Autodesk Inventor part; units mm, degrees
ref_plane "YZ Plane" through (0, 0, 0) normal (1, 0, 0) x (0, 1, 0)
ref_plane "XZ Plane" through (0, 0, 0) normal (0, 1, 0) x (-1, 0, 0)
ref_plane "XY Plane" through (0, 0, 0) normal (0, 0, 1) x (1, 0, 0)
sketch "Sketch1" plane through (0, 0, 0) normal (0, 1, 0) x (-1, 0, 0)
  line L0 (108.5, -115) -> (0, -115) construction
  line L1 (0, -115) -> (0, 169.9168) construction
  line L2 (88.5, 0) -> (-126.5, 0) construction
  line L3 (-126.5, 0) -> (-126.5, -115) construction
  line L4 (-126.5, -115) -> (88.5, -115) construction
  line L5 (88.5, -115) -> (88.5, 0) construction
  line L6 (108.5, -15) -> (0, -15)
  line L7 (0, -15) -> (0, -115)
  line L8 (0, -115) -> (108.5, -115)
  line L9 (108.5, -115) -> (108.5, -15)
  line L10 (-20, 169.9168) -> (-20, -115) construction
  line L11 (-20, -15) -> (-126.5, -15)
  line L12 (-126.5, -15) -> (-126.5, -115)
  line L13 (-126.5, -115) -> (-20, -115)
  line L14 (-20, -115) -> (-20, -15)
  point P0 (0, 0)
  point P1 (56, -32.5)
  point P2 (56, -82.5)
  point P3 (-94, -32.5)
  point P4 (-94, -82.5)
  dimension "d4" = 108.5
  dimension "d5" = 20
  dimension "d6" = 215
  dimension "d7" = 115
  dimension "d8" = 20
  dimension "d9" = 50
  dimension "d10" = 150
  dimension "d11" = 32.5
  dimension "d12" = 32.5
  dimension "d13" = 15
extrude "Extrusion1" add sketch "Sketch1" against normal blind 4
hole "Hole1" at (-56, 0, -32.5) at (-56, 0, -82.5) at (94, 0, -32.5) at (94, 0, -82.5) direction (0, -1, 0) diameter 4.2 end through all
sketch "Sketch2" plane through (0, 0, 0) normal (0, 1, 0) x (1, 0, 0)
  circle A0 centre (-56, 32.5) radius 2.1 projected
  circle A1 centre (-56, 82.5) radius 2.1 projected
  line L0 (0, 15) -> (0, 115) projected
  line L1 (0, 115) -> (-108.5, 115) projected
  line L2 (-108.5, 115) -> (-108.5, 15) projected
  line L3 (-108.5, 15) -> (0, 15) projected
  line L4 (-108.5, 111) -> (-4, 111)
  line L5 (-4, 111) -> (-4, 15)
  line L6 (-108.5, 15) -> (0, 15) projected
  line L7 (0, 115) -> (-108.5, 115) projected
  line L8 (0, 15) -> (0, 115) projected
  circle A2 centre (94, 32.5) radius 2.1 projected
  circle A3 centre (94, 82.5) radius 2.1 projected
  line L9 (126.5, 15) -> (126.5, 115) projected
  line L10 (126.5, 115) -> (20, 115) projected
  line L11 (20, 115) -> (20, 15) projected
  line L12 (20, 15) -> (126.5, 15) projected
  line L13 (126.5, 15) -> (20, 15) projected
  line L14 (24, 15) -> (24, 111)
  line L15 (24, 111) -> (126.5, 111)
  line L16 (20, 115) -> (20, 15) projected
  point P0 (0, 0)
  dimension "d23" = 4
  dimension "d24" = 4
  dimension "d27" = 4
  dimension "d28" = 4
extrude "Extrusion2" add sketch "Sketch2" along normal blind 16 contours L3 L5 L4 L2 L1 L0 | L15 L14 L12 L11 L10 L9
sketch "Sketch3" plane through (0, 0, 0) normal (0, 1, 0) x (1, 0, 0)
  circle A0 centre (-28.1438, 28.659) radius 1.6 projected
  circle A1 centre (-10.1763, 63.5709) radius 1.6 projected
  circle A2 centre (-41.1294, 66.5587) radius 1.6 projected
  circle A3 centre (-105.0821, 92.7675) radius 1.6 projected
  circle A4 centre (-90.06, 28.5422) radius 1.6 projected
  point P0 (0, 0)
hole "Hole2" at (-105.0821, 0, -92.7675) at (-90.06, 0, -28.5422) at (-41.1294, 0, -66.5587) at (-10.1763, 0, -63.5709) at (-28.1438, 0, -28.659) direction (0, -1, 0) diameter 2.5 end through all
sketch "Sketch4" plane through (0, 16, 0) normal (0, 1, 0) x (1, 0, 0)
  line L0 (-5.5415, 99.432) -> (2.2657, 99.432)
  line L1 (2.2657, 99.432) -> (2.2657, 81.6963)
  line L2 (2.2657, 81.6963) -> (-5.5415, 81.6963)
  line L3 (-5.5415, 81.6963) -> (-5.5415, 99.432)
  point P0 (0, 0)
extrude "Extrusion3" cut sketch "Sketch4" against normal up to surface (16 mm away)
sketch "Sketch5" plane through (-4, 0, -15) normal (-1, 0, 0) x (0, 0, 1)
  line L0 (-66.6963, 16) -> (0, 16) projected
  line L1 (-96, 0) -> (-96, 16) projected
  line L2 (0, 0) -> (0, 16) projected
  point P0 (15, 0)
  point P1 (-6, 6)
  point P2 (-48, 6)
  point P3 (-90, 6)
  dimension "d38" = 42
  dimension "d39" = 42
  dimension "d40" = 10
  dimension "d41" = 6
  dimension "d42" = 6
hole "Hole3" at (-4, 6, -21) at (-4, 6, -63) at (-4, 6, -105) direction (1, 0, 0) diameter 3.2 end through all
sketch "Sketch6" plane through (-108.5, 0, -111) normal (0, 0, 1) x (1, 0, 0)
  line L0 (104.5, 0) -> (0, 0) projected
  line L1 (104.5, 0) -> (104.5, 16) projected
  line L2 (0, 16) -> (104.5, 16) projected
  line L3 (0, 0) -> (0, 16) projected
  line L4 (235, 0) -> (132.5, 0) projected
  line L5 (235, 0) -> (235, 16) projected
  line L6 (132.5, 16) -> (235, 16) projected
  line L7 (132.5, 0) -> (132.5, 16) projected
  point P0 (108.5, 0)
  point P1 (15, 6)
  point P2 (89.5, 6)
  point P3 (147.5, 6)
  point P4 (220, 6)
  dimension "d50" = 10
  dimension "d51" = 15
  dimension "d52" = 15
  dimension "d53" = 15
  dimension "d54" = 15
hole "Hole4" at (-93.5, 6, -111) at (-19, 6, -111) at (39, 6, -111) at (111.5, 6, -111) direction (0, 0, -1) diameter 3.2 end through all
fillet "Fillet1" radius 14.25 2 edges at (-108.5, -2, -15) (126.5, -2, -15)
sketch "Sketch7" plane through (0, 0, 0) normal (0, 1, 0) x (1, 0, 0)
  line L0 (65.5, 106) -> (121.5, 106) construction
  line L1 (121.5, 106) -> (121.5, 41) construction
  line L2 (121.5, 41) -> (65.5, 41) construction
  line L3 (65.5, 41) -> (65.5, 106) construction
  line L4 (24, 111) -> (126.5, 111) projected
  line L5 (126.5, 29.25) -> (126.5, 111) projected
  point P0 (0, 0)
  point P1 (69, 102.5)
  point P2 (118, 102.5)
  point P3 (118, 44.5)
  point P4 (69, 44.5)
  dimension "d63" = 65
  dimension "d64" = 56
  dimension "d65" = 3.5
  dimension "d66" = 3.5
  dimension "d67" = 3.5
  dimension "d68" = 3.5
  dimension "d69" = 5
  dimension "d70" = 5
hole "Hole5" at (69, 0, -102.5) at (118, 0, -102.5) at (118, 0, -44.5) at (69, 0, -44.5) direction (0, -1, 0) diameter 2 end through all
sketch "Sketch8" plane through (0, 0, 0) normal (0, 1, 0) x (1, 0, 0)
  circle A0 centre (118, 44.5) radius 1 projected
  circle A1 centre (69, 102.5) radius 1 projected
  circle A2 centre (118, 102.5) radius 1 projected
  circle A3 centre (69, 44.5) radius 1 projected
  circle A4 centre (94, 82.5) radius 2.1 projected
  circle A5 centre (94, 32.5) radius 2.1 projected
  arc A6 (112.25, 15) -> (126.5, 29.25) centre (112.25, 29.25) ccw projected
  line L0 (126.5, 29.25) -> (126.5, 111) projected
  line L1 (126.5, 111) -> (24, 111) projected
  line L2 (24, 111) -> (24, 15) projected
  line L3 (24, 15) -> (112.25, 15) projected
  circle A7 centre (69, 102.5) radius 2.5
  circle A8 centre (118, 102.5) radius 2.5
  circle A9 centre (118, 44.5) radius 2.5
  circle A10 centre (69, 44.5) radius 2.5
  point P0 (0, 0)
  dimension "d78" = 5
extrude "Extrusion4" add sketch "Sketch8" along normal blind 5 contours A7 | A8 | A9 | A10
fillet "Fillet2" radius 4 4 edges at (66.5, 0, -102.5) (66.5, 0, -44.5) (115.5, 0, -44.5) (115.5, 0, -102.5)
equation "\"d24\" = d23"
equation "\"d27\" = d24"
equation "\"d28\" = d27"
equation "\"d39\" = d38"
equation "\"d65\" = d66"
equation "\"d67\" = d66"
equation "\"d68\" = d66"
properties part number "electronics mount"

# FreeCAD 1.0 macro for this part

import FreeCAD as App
import Part
import Sketcher

V = App.Vector


def edges_at(feature, points):
    """Names of the edges that pass closest to the given points."""
    edges = feature.Shape.Edges
    near = lambda p: min(range(len(edges)), key=lambda i: edges[i].distToShape(Part.Vertex(*p))[0])
    return sorted({f"Edge{near(p) + 1}" for p in points})

doc = App.newDocument("Part")
body = doc.addObject("PartDesign::Body", "Body")
body.AllowCompound = True

# Sketch on XZ plane
sketch1 = body.newObject("Sketcher::SketchObject", "Sketch")
sketch1.AttachmentSupport = (doc.getObject("XZ_Plane"), [""])
sketch1.MapMode = "FlatFace"
sketch1.addGeometry([
    Part.LineSegment(V(-108, -115, 0), V(-108, -15, 0)),  # 0
    Part.LineSegment(V(-108, -15, 0), V(0, -15, 0)),  # 1
    Part.LineSegment(V(0, -15, 0), V(0, -115, 0)),  # 2
    Part.LineSegment(V(0, -115, 0), V(-108, -115, 0)),  # 3
    Part.LineSegment(V(20, -115, 0), V(20, -15, 0)),  # 4
    Part.LineSegment(V(20, -15, 0), V(126, -15, 0)),  # 5
    Part.LineSegment(V(126, -15, 0), V(126, -115, 0)),  # 6
    Part.LineSegment(V(126, -115, 0), V(20, -115, 0)),  # 7
], False)
sketch1.addConstraint([
    Sketcher.Constraint("Coincident", 0, 2, 1, 1),
    Sketcher.Constraint("Coincident", 1, 2, 2, 1),
    Sketcher.Constraint("Coincident", 2, 2, 3, 1),
    Sketcher.Constraint("Coincident", 3, 2, 0, 1),
    Sketcher.Constraint("Coincident", 4, 2, 5, 1),
    Sketcher.Constraint("Coincident", 5, 2, 6, 1),
    Sketcher.Constraint("Coincident", 6, 2, 7, 1),
    Sketcher.Constraint("Coincident", 7, 2, 4, 1),
    Sketcher.Constraint("Vertical", 0),
    Sketcher.Constraint("Horizontal", 1),
    Sketcher.Constraint("Vertical", 2),
    Sketcher.Constraint("Horizontal", 3),
    Sketcher.Constraint("Vertical", 4),
    Sketcher.Constraint("Horizontal", 5),
    Sketcher.Constraint("Vertical", 6),
    Sketcher.Constraint("Horizontal", 7),
    Sketcher.Constraint("PointOnObject", 1, 2, -2),
    Sketcher.Constraint("Horizontal", 1, 2, 4, 2),
    Sketcher.Constraint("Horizontal", 3, 2, 6, 2),
    Sketcher.Constraint("DistanceX", 1, 1, 1, 2, 108.5),
    Sketcher.Constraint("DistanceY", 0, 2, -1, 1, 15.0),
    Sketcher.Constraint("DistanceY", 2, 2, -1, 1, 115.0),
    Sketcher.Constraint("DistanceX", -1, 1, 4, 2, 20.0),
    Sketcher.Constraint("DistanceX", 5, 1, 5, 2, 106.5),
])
pad1 = body.newObject("PartDesign::Pad", "Pad")
pad1.Profile = sketch1
pad1.Length = 4

# Sketch on XZ plane
sketch2 = body.newObject("Sketcher::SketchObject", "Sketch001")
sketch2.AttachmentSupport = (doc.getObject("XZ_Plane"), [""])
sketch2.MapMode = "FlatFace"
sketch2.addGeometry([
    Part.Circle(V(-56, -32.5, 0), V(0, 0, 1), 2.1),
    Part.Circle(V(-56, -82.5, 0), V(0, 0, 1), 2.1),
    Part.Circle(V(94, -32.5, 0), V(0, 0, 1), 2.1),
    Part.Circle(V(94, -82.5, 0), V(0, 0, 1), 2.1),
], False)
sketch2.addConstraint([
    Sketcher.Constraint("Equal", 0, 1),
    Sketcher.Constraint("Equal", 1, 2),
    Sketcher.Constraint("Equal", 2, 3),
    Sketcher.Constraint("Horizontal", 0, 3, 2, 3),
    Sketcher.Constraint("Horizontal", 1, 3, 3, 3),
    Sketcher.Constraint("Vertical", 0, 3, 1, 3),
    Sketcher.Constraint("Vertical", 2, 3, 3, 3),
    Sketcher.Constraint("Diameter", 0, 4.2),
    Sketcher.Constraint("DistanceX", 0, 3, -1, 1, 56.0),
    Sketcher.Constraint("DistanceX", -1, 1, 2, 3, 94.0),
    Sketcher.Constraint("DistanceY", 1, 3, 0, 3, 50.0),
    Sketcher.Constraint("DistanceY", 0, 3, -1, 1, 32.5),
])
doc.recompute()
hole = body.newObject("PartDesign::Hole", "Hole")
hole.Profile = sketch2
hole.ThreadType = "None"
hole.Diameter = 4.2
hole.DepthType = "ThroughAll"
hole.Reversed = True

# Sketch on XZ plane
sketch3 = body.newObject("Sketcher::SketchObject", "Sketch002")
sketch3.AttachmentSupport = (doc.getObject("XZ_Plane"), [""])
sketch3.MapMode = "FlatFace"
sketch3.addGeometry([
    Part.LineSegment(V(-4, -15, 0), V(0, -15, 0)),  # 0
    Part.LineSegment(V(0, -15, 0), V(0, -115, 0)),  # 1
    Part.LineSegment(V(0, -115, 0), V(-108.5, -115, 0)),  # 2
    Part.LineSegment(V(-108.5, -115, 0), V(-108.5, -111, 0)),  # 3
    Part.LineSegment(V(-108.5, -111, 0), V(-4, -111, 0)),  # 4
    Part.LineSegment(V(-4, -111, 0), V(-4, -15, 0)),  # 5
    Part.LineSegment(V(24, -111, 0), V(126.5, -111, 0)),  # 6
    Part.LineSegment(V(126.5, -111, 0), V(126.5, -115, 0)),  # 7
    Part.LineSegment(V(126.5, -115, 0), V(20, -115, 0)),  # 8
    Part.LineSegment(V(20, -115, 0), V(20, -15, 0)),  # 9
    Part.LineSegment(V(20, -15, 0), V(24, -15, 0)),  # 10
    Part.LineSegment(V(24, -15, 0), V(24, -111, 0)),  # 11
], False)
sketch3.addConstraint([
    Sketcher.Constraint("Coincident", 0, 2, 1, 1),
    Sketcher.Constraint("Coincident", 1, 2, 2, 1),
    Sketcher.Constraint("Coincident", 2, 2, 3, 1),
    Sketcher.Constraint("Coincident", 3, 2, 4, 1),
    Sketcher.Constraint("Coincident", 4, 2, 5, 1),
    Sketcher.Constraint("Coincident", 5, 2, 0, 1),
    Sketcher.Constraint("Coincident", 6, 2, 7, 1),
    Sketcher.Constraint("Coincident", 7, 2, 8, 1),
    Sketcher.Constraint("Coincident", 8, 2, 9, 1),
    Sketcher.Constraint("Coincident", 9, 2, 10, 1),
    Sketcher.Constraint("Coincident", 10, 2, 11, 1),
    Sketcher.Constraint("Coincident", 11, 2, 6, 1),
    Sketcher.Constraint("Horizontal", 0),
    Sketcher.Constraint("Vertical", 1),
    Sketcher.Constraint("Horizontal", 2),
    Sketcher.Constraint("Vertical", 3),
    Sketcher.Constraint("Horizontal", 4),
    Sketcher.Constraint("Vertical", 5),
    Sketcher.Constraint("Horizontal", 6),
    Sketcher.Constraint("Vertical", 7),
    Sketcher.Constraint("Horizontal", 8),
    Sketcher.Constraint("Vertical", 9),
    Sketcher.Constraint("Horizontal", 10),
    Sketcher.Constraint("Vertical", 11),
    Sketcher.Constraint("PointOnObject", 0, 2, -2),
    Sketcher.Constraint("Horizontal", 4, 2, 6, 2),
    Sketcher.Constraint("Horizontal", 2, 2, 7, 2),
    Sketcher.Constraint("Horizontal", 5, 2, 9, 2),
    Sketcher.Constraint("Equal", 0, 10),
    Sketcher.Constraint("Equal", 10, 3),
    Sketcher.Constraint("DistanceX", 0, 1, 0, 2, 4.0),
    Sketcher.Constraint("DistanceY", 1, 2, 1, 1, 100.0),
    Sketcher.Constraint("DistanceX", 2, 2, 2, 1, 108.5),
    Sketcher.Constraint("DistanceX", 6, 1, 6, 2, 102.5),
    Sketcher.Constraint("DistanceY", 0, 2, -1, 1, 15.0),
    Sketcher.Constraint("DistanceX", -1, 1, 8, 2, 20.0),
])
pad2 = body.newObject("PartDesign::Pad", "Pad001")
pad2.Profile = sketch3
pad2.Length = 16
pad2.Reversed = True

# Sketch on XZ plane
sketch4 = body.newObject("Sketcher::SketchObject", "Sketch003")
sketch4.AttachmentSupport = (doc.getObject("XZ_Plane"), [""])
sketch4.MapMode = "FlatFace"
sketch4.addGeometry([
    Part.Circle(V(-105.1, -92.8, 0), V(0, 0, 1), 1.2),  # 0
    Part.Circle(V(-90.1, -28.5, 0), V(0, 0, 1), 1.2),  # 1
    Part.Circle(V(-41.1, -66.6, 0), V(0, 0, 1), 1.2),  # 2
    Part.Circle(V(-10.2, -63.6, 0), V(0, 0, 1), 1.2),  # 3
    Part.Circle(V(-28.1, -28.7, 0), V(0, 0, 1), 1.2),  # 4
], False)
sketch4.addConstraint([
    Sketcher.Constraint("Equal", 0, 1),
    Sketcher.Constraint("Equal", 1, 2),
    Sketcher.Constraint("Equal", 2, 3),
    Sketcher.Constraint("Equal", 3, 4),
    Sketcher.Constraint("Diameter", 0, 2.5),
    Sketcher.Constraint("DistanceX", 1, 3, -1, 1, 90.06),
    Sketcher.Constraint("DistanceX", 0, 3, -1, 1, 105.082),
    Sketcher.Constraint("DistanceY", 3, 3, -1, 1, 63.571),
    Sketcher.Constraint("DistanceY", 4, 3, -1, 1, 28.659),
    Sketcher.Constraint("DistanceX", 2, 3, 3, 3, 30.953),
    Sketcher.Constraint("DistanceY", 0, 3, -1, 1, 92.7675),
    Sketcher.Constraint("DistanceY", 1, 3, -1, 1, 28.5422),
    Sketcher.Constraint("DistanceX", 2, 3, -1, 1, 41.1294),
    Sketcher.Constraint("DistanceY", 2, 3, -1, 1, 66.5587),
    Sketcher.Constraint("DistanceX", 4, 3, -1, 1, 28.1438),
])
doc.recompute()
hole2 = body.newObject("PartDesign::Hole", "Hole001")
hole2.Profile = sketch4
hole2.ThreadType = "None"
hole2.Diameter = 2.5
hole2.DepthType = "ThroughAll"
hole2.Reversed = True

# Sketch on XZ plane
sketch5 = body.newObject("Sketcher::SketchObject", "Sketch004")
sketch5.AttachmentSupport = (doc.getObject("XZ_Plane"), [""])
sketch5.MapMode = "FlatFace"
sketch5.AttachmentOffset = App.Placement(V(0, 0, -16), App.Rotation())
sketch5.addGeometry([
    Part.LineSegment(V(2, -99, 0), V(-6, -99, 0)),
    Part.LineSegment(V(-6, -99, 0), V(-6, -82, 0)),
    Part.LineSegment(V(-6, -82, 0), V(2, -82, 0)),
    Part.LineSegment(V(2, -82, 0), V(2, -99, 0)),
], False)
sketch5.addConstraint([
    Sketcher.Constraint("Coincident", 0, 2, 1, 1),
    Sketcher.Constraint("Coincident", 1, 2, 2, 1),
    Sketcher.Constraint("Coincident", 2, 2, 3, 1),
    Sketcher.Constraint("Coincident", 3, 2, 0, 1),
    Sketcher.Constraint("Horizontal", 0),
    Sketcher.Constraint("Vertical", 1),
    Sketcher.Constraint("Horizontal", 2),
    Sketcher.Constraint("Vertical", 3),
    Sketcher.Constraint("DistanceX", 0, 2, 0, 1, 7.8072),
    Sketcher.Constraint("DistanceY", 1, 1, 1, 2, 17.7357),
    Sketcher.Constraint("DistanceY", 0, 2, -1, 1, 99.432),
    Sketcher.Constraint("DistanceX", 0, 2, -1, 1, 5.5415),
])
pocket1 = body.newObject("PartDesign::Pocket", "Pocket")
pocket1.Profile = sketch5
pocket1.Length = 16
pocket1.Reversed = True

# Sketch on YZ plane
sketch6 = body.newObject("Sketcher::SketchObject", "Sketch005")
sketch6.AttachmentSupport = (doc.getObject("YZ_Plane"), [""])
sketch6.MapMode = "FlatFace"
sketch6.AttachmentOffset = App.Placement(V(0, 0, -4), App.Rotation())
sketch6.addGeometry([
    Part.Circle(V(6, -21, 0), V(0, 0, 1), 1.6),
    Part.Circle(V(6, -63, 0), V(0, 0, 1), 1.6),
    Part.Circle(V(6, -105, 0), V(0, 0, 1), 1.6),
], False)
sketch6.addConstraint([
    Sketcher.Constraint("Equal", 0, 1),
    Sketcher.Constraint("Equal", 1, 2),
    Sketcher.Constraint("Vertical", 0, 3, 1, 3),
    Sketcher.Constraint("Vertical", 1, 3, 2, 3),
    Sketcher.Constraint("Diameter", 0, 3.2),
    Sketcher.Constraint("DistanceX", -1, 1, 0, 3, 6.0),
    Sketcher.Constraint("DistanceY", 0, 3, -1, 1, 21.0),
    Sketcher.Constraint("DistanceY", 1, 3, -1, 1, 63.0),
    Sketcher.Constraint("DistanceY", 2, 3, -1, 1, 105.0),
])
doc.recompute()
hole3 = body.newObject("PartDesign::Hole", "Hole002")
hole3.Profile = sketch6
hole3.ThreadType = "None"
hole3.Diameter = 3.2
hole3.DepthType = "ThroughAll"
hole3.Reversed = True

# Sketch on XY plane
sketch7 = body.newObject("Sketcher::SketchObject", "Sketch006")
sketch7.AttachmentSupport = (doc.getObject("XY_Plane"), [""])
sketch7.MapMode = "FlatFace"
sketch7.AttachmentOffset = App.Placement(V(0, 0, -111), App.Rotation())
sketch7.addGeometry([
    Part.Circle(V(-93.5, 6, 0), V(0, 0, 1), 1.6),
    Part.Circle(V(-19, 6, 0), V(0, 0, 1), 1.6),
    Part.Circle(V(39, 6, 0), V(0, 0, 1), 1.6),
    Part.Circle(V(111.5, 6, 0), V(0, 0, 1), 1.6),
], False)
sketch7.addConstraint([
    Sketcher.Constraint("Equal", 0, 1),
    Sketcher.Constraint("Equal", 1, 2),
    Sketcher.Constraint("Equal", 2, 3),
    Sketcher.Constraint("Horizontal", 0, 3, 1, 3),
    Sketcher.Constraint("Horizontal", 1, 3, 2, 3),
    Sketcher.Constraint("Horizontal", 2, 3, 3, 3),
    Sketcher.Constraint("Diameter", 0, 3.2),
    Sketcher.Constraint("DistanceY", -1, 1, 0, 3, 6.0),
    Sketcher.Constraint("DistanceX", 1, 3, -1, 1, 19.0),
    Sketcher.Constraint("DistanceX", -1, 1, 2, 3, 39.0),
    Sketcher.Constraint("DistanceX", 0, 3, 3, 3, 205.0),
    Sketcher.Constraint("DistanceX", 0, 3, -1, 1, 93.5),
])
doc.recompute()
hole4 = body.newObject("PartDesign::Hole", "Hole003")
hole4.Profile = sketch7
hole4.ThreadType = "None"
hole4.Diameter = 3.2
hole4.DepthType = "ThroughAll"
doc.recompute()

fillet = body.newObject("PartDesign::Fillet", "Fillet")
fillet.Base = (hole4, edges_at(hole4, [(-108.5, -2, -15), (126.5, -2, -15)]))
fillet.Radius = 14.25

# Sketch on XZ plane
sketch8 = body.newObject("Sketcher::SketchObject", "Sketch007")
sketch8.AttachmentSupport = (doc.getObject("XZ_Plane"), [""])
sketch8.MapMode = "FlatFace"
sketch8.addGeometry([
    Part.Circle(V(69, -102.5, 0), V(0, 0, 1), 1),
    Part.Circle(V(118, -102.5, 0), V(0, 0, 1), 1),
    Part.Circle(V(118, -44.5, 0), V(0, 0, 1), 1),
    Part.Circle(V(69, -44.5, 0), V(0, 0, 1), 1),
], False)
sketch8.addConstraint([
    Sketcher.Constraint("Equal", 0, 1),
    Sketcher.Constraint("Equal", 1, 2),
    Sketcher.Constraint("Equal", 2, 3),
    Sketcher.Constraint("Horizontal", 0, 3, 1, 3),
    Sketcher.Constraint("Horizontal", 2, 3, 3, 3),
    Sketcher.Constraint("Vertical", 1, 3, 2, 3),
    Sketcher.Constraint("Vertical", 0, 3, 3, 3),
    Sketcher.Constraint("Diameter", 0, 2.0),
    Sketcher.Constraint("DistanceX", -1, 1, 0, 3, 69.0),
    Sketcher.Constraint("DistanceX", -1, 1, 1, 3, 118.0),
    Sketcher.Constraint("DistanceY", 1, 3, 2, 3, 58.0),
    Sketcher.Constraint("DistanceY", 0, 3, -1, 1, 102.5),
])
doc.recompute()
hole5 = body.newObject("PartDesign::Hole", "Hole004")
hole5.Profile = sketch8
hole5.ThreadType = "None"
hole5.Diameter = 2
hole5.DepthType = "ThroughAll"
hole5.Reversed = True

# Sketch on XZ plane
sketch9 = body.newObject("Sketcher::SketchObject", "Sketch008")
sketch9.AttachmentSupport = (doc.getObject("XZ_Plane"), [""])
sketch9.MapMode = "FlatFace"
sketch9.addGeometry([
    Part.Circle(V(69, -102.5, 0), V(0, 0, 1), 2.5),  # 0
    Part.Circle(V(69, -102.5, 0), V(0, 0, 1), 1),  # 1
    Part.Circle(V(118, -102.5, 0), V(0, 0, 1), 2.5),  # 2
    Part.Circle(V(118, -102.5, 0), V(0, 0, 1), 1),  # 3
    Part.Circle(V(118, -44.5, 0), V(0, 0, 1), 2.5),  # 4
    Part.Circle(V(118, -44.5, 0), V(0, 0, 1), 1),  # 5
    Part.Circle(V(69, -44.5, 0), V(0, 0, 1), 2.5),  # 6
    Part.Circle(V(69, -44.5, 0), V(0, 0, 1), 1),  # 7
], False)
sketch9.addConstraint([
    Sketcher.Constraint("Coincident", 1, 3, 0, 3),
    Sketcher.Constraint("Coincident", 3, 3, 2, 3),
    Sketcher.Constraint("Coincident", 5, 3, 4, 3),
    Sketcher.Constraint("Coincident", 7, 3, 6, 3),
    Sketcher.Constraint("Equal", 0, 2),
    Sketcher.Constraint("Equal", 1, 3),
    Sketcher.Constraint("Equal", 2, 4),
    Sketcher.Constraint("Equal", 3, 5),
    Sketcher.Constraint("Equal", 4, 6),
    Sketcher.Constraint("Equal", 5, 7),
    Sketcher.Constraint("Horizontal", 1, 3, 2, 3),
    Sketcher.Constraint("Horizontal", 5, 3, 6, 3),
    Sketcher.Constraint("Vertical", 3, 3, 4, 3),
    Sketcher.Constraint("Vertical", 1, 3, 6, 3),
    Sketcher.Constraint("Diameter", 0, 5.0),
    Sketcher.Constraint("Diameter", 1, 2.0),
    Sketcher.Constraint("DistanceX", -1, 1, 0, 3, 69.0),
    Sketcher.Constraint("DistanceX", -1, 1, 2, 3, 118.0),
    Sketcher.Constraint("DistanceY", 2, 3, 4, 3, 58.0),
    Sketcher.Constraint("DistanceY", 0, 3, -1, 1, 102.5),
])
pad3 = body.newObject("PartDesign::Pad", "Pad002")
pad3.Profile = sketch9
pad3.Length = 5
pad3.Reversed = True
doc.recompute()

fillet2 = body.newObject("PartDesign::Fillet", "Fillet001")
fillet2.Base = (pad3, edges_at(pad3, [
    (66.5, 0, -102.5),
    (66.5, 0, -44.5),
    (115.5, 0, -44.5),
    (115.5, 0, -102.5),
]))
fillet2.Radius = 4

doc.recompute()
